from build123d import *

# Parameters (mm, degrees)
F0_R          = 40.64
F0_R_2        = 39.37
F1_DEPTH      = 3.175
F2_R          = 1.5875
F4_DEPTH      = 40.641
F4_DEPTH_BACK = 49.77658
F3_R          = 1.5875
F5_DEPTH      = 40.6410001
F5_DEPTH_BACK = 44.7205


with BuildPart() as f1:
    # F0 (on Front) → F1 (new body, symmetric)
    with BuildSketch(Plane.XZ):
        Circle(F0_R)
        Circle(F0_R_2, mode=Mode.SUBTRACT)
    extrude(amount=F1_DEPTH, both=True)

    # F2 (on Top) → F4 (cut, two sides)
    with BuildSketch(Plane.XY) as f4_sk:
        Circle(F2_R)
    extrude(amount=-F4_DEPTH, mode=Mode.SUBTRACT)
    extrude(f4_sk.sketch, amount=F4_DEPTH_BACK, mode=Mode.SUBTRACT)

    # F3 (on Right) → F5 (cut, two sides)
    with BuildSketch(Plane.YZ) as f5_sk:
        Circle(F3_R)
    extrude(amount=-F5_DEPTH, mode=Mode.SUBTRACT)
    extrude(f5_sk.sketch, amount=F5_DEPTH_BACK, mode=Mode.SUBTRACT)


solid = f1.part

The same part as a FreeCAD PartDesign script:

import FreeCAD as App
import Part
import Sketcher

V = App.Vector
Q = App.Units.Quantity

doc = App.newDocument("Part")
body = doc.addObject("PartDesign::Body", "Body")

sketch1 = body.newObject("Sketcher::SketchObject", "Sketch")
sketch1.AttachmentSupport = (doc.getObject("XZ_Plane"), [""])
sketch1.MapMode = "FlatFace"
sketch1.addGeometry(Part.Circle(V(0, 0, 0), V(0, 0, 1), 40.64), False)
sketch1.addGeometry(Part.Circle(V(0, 0, 0), V(0, 0, 1), 39.37), False)
sketch1.addConstraint(Sketcher.Constraint("Coincident", 0, 3, -1, 1))
sketch1.addConstraint(Sketcher.Constraint("Coincident", 1, 3, -1, 1))
sketch1.addConstraint(Sketcher.Constraint("Diameter", 0, Q("3.2 in")))
sketch1.addConstraint(Sketcher.Constraint("Diameter", 1, Q("3.1 in")))
pad1 = body.newObject("PartDesign::Pad", "Pad")
pad1.Profile = sketch1
pad1.Length = Q("0.25 in")
pad1.Midplane = True

sketch2 = body.newObject("Sketcher::SketchObject", "Sketch001")
sketch2.AttachmentSupport = (doc.getObject("XY_Plane"), [""])
sketch2.MapMode = "FlatFace"
sketch2.addGeometry(Part.Circle(V(0, 0, 0), V(0, 0, 1), 1.5875), False)
sketch2.addConstraint(Sketcher.Constraint("Coincident", 0, 3, -1, 1))
sketch2.addConstraint(Sketcher.Constraint("Diameter", 0, Q("0.125 in")))
pocket1 = body.newObject("PartDesign::Pocket", "Pocket")
pocket1.Profile = sketch2
pocket1.Type = "ThroughAll"
pocket1.Midplane = True

sketch3 = body.newObject("Sketcher::SketchObject", "Sketch002")
sketch3.AttachmentSupport = (doc.getObject("YZ_Plane"), [""])
sketch3.MapMode = "FlatFace"
sketch3.addGeometry(Part.Circle(V(0, 0, 0), V(0, 0, 1), 1.5875), False)
sketch3.addConstraint(Sketcher.Constraint("Coincident", 0, 3, -1, 1))
sketch3.addConstraint(Sketcher.Constraint("Diameter", 0, Q("0.125 in")))
pocket2 = body.newObject("PartDesign::Pocket", "Pocket001")
pocket2.Profile = sketch3
pocket2.Type = "ThroughAll"
pocket2.Midplane = True

doc.recompute()
